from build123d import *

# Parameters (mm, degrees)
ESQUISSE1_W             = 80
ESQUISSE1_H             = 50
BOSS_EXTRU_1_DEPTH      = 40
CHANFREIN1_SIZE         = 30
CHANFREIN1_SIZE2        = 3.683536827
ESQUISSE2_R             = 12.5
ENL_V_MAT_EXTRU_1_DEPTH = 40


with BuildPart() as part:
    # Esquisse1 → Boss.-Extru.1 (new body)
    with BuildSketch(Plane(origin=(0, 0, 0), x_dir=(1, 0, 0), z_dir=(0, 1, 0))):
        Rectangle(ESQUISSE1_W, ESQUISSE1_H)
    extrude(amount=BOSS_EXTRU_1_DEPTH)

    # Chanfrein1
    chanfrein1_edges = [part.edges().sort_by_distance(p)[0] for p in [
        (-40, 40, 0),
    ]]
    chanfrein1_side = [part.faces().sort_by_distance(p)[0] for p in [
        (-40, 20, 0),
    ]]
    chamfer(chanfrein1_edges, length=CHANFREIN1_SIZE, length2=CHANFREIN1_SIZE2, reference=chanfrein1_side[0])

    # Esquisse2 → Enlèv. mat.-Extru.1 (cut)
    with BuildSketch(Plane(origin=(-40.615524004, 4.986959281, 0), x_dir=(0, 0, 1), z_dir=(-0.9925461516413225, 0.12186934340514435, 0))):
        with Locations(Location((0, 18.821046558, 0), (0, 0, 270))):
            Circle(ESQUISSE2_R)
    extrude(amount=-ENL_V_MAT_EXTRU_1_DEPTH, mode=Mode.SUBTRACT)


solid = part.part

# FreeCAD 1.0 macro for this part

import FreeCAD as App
import Part
import Sketcher
Q = App.Units.Quantity


def edges_at(feature, points):
    """Names of the edges that pass closest to the given points."""
    edges = feature.Shape.Edges
    near = lambda p: min(range(len(edges)), key=lambda i: edges[i].distToShape(Part.Vertex(*p))[0])
    return sorted({f"Edge{near(p) + 1}" for p in points})

doc = App.newDocument("Part")
body = doc.addObject("PartDesign::Body", "Body")

sketch1 = body.newObject("Sketcher::SketchObject", "Sketch")
sketch1.AttachmentSupport = (doc.getObject("XZ_Plane"), [""])
sketch1.MapMode = "FlatFace"
sketch1.addGeometry([
    Part.LineSegment(App.Vector(-40, -25, 0), App.Vector(-40, 25, 0)),
    Part.LineSegment(App.Vector(-40, 25, 0), App.Vector(40, 25, 0)),
    Part.LineSegment(App.Vector(40, 25, 0), App.Vector(40, -25, 0)),
    Part.LineSegment(App.Vector(40, -25, 0), App.Vector(-40, -25, 0)),
], False)
sketch1.addConstraint([
    Sketcher.Constraint("Coincident", 0, 2, 1, 1),
    Sketcher.Constraint("Coincident", 1, 2, 2, 1),
    Sketcher.Constraint("Coincident", 2, 2, 3, 1),
    Sketcher.Constraint("Coincident", 3, 2, 0, 1),
    Sketcher.Constraint("Vertical", 0),
    Sketcher.Constraint("Horizontal", 1),
    Sketcher.Constraint("Vertical", 2),
    Sketcher.Constraint("Horizontal", 3),
    Sketcher.Constraint("Symmetric", 0, 2, 2, 2, -1, 1),
    Sketcher.Constraint("DistanceX", 1, 1, 1, 2, Q("80 mm")),
    Sketcher.Constraint("DistanceY", 0, 1, 0, 2, Q("50 mm")),
])
pad1 = body.newObject("PartDesign::Pad", "Pad")
pad1.Profile = sketch1
pad1.Length = 40
pad1.Reversed = True
doc.recompute()

chamfer = body.newObject("PartDesign::Chamfer", "Chamfer")
chamfer.Base = (pad1, edges_at(pad1, [(-40, 40, 0)]))
chamfer.ChamferType = "Two distances"
chamfer.Size = 30
chamfer.Size2 = 3.683537

sketch2 = body.newObject("Sketcher::SketchObject", "Sketch001")
sketch2.Placement = App.Placement(App.Vector(-40.615524, 4.986959, 0), App.Rotation(App.Vector(0, 0, 1), App.Vector(0.121869343, 0.992546152, 0), App.Vector(-0.992546152, 0.121869343, 0), "ZXY"))
sketch2.addGeometry(Part.Circle(App.Vector(0, 18.821047, 0), App.Vector(0, 0, 1), 12.5), False)
sketch2.addConstraint([
    Sketcher.Constraint("PointOnObject", 0, 3, -2),
    Sketcher.Constraint("Diameter", 0, Q("25 mm")),
    Sketcher.Constraint("DistanceY", -1, 1, 0, 3, Q("18.821047 mm")),
])
pocket1 = body.newObject("PartDesign::Pocket", "Pocket")
pocket1.Profile = sketch2
pocket1.Length = 40

doc.recompute()
